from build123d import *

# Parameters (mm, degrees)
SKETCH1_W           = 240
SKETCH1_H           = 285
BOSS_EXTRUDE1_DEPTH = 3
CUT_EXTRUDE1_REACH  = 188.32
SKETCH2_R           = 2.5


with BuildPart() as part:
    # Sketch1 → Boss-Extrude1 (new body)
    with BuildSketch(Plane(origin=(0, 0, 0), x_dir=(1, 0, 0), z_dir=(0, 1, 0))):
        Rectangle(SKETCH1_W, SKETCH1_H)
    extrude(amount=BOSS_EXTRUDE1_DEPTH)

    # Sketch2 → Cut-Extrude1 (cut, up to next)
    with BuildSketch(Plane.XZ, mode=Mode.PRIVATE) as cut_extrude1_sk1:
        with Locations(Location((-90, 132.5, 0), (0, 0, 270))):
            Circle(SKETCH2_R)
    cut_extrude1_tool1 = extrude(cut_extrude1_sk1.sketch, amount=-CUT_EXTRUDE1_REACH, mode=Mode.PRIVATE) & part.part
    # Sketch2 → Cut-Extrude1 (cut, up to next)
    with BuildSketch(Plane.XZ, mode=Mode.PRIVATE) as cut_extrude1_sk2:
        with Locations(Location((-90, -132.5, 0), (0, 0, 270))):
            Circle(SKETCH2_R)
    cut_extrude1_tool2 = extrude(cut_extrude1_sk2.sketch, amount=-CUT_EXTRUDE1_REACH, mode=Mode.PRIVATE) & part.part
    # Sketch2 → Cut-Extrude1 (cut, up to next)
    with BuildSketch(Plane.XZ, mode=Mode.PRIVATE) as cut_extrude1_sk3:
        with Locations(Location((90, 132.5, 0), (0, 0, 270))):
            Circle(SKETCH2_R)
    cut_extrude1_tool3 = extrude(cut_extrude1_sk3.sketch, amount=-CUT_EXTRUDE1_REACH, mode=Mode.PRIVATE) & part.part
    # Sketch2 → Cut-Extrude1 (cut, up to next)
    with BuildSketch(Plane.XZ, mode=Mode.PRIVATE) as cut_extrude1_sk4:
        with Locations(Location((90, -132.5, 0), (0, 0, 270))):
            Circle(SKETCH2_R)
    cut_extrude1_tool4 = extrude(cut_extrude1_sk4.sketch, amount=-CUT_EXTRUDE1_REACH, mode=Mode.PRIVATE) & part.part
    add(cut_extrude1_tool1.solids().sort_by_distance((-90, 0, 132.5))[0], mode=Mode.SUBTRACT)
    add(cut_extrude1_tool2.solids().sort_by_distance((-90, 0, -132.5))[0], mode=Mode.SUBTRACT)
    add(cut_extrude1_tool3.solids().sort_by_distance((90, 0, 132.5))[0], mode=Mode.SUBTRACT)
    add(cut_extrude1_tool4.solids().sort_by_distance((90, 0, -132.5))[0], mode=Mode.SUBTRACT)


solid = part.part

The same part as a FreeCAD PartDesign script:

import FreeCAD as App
import Part
import Sketcher

V = App.Vector

doc = App.newDocument("Part")
body = doc.addObject("PartDesign::Body", "Body")

sketch1 = body.newObject("Sketcher::SketchObject", "Sketch")
sketch1.AttachmentSupport = (doc.getObject("XZ_Plane"), [""])
sketch1.MapMode = "FlatFace"
sketch1.addGeometry([
    Part.LineSegment(V(-120, -142.5, 0), V(-120, 142.5, 0)),
    Part.LineSegment(V(-120, 142.5, 0), V(120, 142.5, 0)),
    Part.LineSegment(V(120, 142.5, 0), V(120, -142.5, 0)),
    Part.LineSegment(V(120, -142.5, 0), V(-120, -142.5, 0)),
], False)
sketch1.addConstraint([
    Sketcher.Constraint("Coincident", 0, 2, 1, 1),
    Sketcher.Constraint("Coincident", 1, 2, 2, 1),
    Sketcher.Constraint("Coincident", 2, 2, 3, 1),
    Sketcher.Constraint("Coincident", 3, 2, 0, 1),
    Sketcher.Constraint("Vertical", 0),
    Sketcher.Constraint("Horizontal", 1),
    Sketcher.Constraint("Vertical", 2),
    Sketcher.Constraint("Horizontal", 3),
    Sketcher.Constraint("Symmetric", 0, 2, 2, 2, -1, 1),
    Sketcher.Constraint("DistanceX", 1, 1, 1, 2, 240.0),
    Sketcher.Constraint("DistanceY", 0, 1, 0, 2, 285.0),
])
pad1 = body.newObject("PartDesign::Pad", "Pad")
pad1.Profile = sketch1
pad1.Length = 3
pad1.Reversed = True

sketch2 = body.newObject("Sketcher::SketchObject", "Sketch001")
sketch2.AttachmentSupport = (doc.getObject("XZ_Plane"), [""])
sketch2.MapMode = "FlatFace"
sketch2.addGeometry(Part.Circle(V(-90, 132.5, 0), V(0, 0, 1), 2.5), False)
sketch2.addConstraint([
    Sketcher.Constraint("Diameter", 0, 5.0),
    Sketcher.Constraint("DistanceX", 0, 3, -1, 1, 90.0),
    Sketcher.Constraint("DistanceY", -1, 1, 0, 3, 132.5),
])
pocket1 = body.newObject("PartDesign::Pocket", "Pocket")
pocket1.Profile = sketch2
pocket1.Type = "UpToFirst"

sketch3 = body.newObject("Sketcher::SketchObject", "Sketch002")
sketch3.AttachmentSupport = (doc.getObject("XZ_Plane"), [""])
sketch3.MapMode = "FlatFace"
sketch3.addGeometry(Part.Circle(V(-90, -132.5, 0), V(0, 0, 1), 2.5), False)
sketch3.addConstraint([
    Sketcher.Constraint("Diameter", 0, 5.0),
    Sketcher.Constraint("DistanceX", 0, 3, -1, 1, 90.0),
    Sketcher.Constraint("DistanceY", 0, 3, -1, 1, 132.5),
])
pocket2 = body.newObject("PartDesign::Pocket", "Pocket001")
pocket2.Profile = sketch3
pocket2.Type = "UpToFirst"

sketch4 = body.newObject("Sketcher::SketchObject", "Sketch003")
sketch4.AttachmentSupport = (doc.getObject("XZ_Plane"), [""])
sketch4.MapMode = "FlatFace"
sketch4.addGeometry(Part.Circle(V(90, 132.5, 0), V(0, 0, 1), 2.5), False)
sketch4.addConstraint([
    Sketcher.Constraint("Diameter", 0, 5.0),
    Sketcher.Constraint("DistanceX", -1, 1, 0, 3, 90.0),
    Sketcher.Constraint("DistanceY", -1, 1, 0, 3, 132.5),
])
pocket3 = body.newObject("PartDesign::Pocket", "Pocket002")
pocket3.Profile = sketch4
pocket3.Type = "UpToFirst"

sketch5 = body.newObject("Sketcher::SketchObject", "Sketch004")
sketch5.AttachmentSupport = (doc.getObject("XZ_Plane"), [""])
sketch5.MapMode = "FlatFace"
sketch5.addGeometry(Part.Circle(V(90, -132.5, 0), V(0, 0, 1), 2.5), False)
sketch5.addConstraint([
    Sketcher.Constraint("Diameter", 0, 5.0),
    Sketcher.Constraint("DistanceX", -1, 1, 0, 3, 90.0),
    Sketcher.Constraint("DistanceY", 0, 3, -1, 1, 132.5),
])
pocket4 = body.newObject("PartDesign::Pocket", "Pocket003")
pocket4.Profile = sketch5
pocket4.Type = "UpToFirst"

doc.recompute()
